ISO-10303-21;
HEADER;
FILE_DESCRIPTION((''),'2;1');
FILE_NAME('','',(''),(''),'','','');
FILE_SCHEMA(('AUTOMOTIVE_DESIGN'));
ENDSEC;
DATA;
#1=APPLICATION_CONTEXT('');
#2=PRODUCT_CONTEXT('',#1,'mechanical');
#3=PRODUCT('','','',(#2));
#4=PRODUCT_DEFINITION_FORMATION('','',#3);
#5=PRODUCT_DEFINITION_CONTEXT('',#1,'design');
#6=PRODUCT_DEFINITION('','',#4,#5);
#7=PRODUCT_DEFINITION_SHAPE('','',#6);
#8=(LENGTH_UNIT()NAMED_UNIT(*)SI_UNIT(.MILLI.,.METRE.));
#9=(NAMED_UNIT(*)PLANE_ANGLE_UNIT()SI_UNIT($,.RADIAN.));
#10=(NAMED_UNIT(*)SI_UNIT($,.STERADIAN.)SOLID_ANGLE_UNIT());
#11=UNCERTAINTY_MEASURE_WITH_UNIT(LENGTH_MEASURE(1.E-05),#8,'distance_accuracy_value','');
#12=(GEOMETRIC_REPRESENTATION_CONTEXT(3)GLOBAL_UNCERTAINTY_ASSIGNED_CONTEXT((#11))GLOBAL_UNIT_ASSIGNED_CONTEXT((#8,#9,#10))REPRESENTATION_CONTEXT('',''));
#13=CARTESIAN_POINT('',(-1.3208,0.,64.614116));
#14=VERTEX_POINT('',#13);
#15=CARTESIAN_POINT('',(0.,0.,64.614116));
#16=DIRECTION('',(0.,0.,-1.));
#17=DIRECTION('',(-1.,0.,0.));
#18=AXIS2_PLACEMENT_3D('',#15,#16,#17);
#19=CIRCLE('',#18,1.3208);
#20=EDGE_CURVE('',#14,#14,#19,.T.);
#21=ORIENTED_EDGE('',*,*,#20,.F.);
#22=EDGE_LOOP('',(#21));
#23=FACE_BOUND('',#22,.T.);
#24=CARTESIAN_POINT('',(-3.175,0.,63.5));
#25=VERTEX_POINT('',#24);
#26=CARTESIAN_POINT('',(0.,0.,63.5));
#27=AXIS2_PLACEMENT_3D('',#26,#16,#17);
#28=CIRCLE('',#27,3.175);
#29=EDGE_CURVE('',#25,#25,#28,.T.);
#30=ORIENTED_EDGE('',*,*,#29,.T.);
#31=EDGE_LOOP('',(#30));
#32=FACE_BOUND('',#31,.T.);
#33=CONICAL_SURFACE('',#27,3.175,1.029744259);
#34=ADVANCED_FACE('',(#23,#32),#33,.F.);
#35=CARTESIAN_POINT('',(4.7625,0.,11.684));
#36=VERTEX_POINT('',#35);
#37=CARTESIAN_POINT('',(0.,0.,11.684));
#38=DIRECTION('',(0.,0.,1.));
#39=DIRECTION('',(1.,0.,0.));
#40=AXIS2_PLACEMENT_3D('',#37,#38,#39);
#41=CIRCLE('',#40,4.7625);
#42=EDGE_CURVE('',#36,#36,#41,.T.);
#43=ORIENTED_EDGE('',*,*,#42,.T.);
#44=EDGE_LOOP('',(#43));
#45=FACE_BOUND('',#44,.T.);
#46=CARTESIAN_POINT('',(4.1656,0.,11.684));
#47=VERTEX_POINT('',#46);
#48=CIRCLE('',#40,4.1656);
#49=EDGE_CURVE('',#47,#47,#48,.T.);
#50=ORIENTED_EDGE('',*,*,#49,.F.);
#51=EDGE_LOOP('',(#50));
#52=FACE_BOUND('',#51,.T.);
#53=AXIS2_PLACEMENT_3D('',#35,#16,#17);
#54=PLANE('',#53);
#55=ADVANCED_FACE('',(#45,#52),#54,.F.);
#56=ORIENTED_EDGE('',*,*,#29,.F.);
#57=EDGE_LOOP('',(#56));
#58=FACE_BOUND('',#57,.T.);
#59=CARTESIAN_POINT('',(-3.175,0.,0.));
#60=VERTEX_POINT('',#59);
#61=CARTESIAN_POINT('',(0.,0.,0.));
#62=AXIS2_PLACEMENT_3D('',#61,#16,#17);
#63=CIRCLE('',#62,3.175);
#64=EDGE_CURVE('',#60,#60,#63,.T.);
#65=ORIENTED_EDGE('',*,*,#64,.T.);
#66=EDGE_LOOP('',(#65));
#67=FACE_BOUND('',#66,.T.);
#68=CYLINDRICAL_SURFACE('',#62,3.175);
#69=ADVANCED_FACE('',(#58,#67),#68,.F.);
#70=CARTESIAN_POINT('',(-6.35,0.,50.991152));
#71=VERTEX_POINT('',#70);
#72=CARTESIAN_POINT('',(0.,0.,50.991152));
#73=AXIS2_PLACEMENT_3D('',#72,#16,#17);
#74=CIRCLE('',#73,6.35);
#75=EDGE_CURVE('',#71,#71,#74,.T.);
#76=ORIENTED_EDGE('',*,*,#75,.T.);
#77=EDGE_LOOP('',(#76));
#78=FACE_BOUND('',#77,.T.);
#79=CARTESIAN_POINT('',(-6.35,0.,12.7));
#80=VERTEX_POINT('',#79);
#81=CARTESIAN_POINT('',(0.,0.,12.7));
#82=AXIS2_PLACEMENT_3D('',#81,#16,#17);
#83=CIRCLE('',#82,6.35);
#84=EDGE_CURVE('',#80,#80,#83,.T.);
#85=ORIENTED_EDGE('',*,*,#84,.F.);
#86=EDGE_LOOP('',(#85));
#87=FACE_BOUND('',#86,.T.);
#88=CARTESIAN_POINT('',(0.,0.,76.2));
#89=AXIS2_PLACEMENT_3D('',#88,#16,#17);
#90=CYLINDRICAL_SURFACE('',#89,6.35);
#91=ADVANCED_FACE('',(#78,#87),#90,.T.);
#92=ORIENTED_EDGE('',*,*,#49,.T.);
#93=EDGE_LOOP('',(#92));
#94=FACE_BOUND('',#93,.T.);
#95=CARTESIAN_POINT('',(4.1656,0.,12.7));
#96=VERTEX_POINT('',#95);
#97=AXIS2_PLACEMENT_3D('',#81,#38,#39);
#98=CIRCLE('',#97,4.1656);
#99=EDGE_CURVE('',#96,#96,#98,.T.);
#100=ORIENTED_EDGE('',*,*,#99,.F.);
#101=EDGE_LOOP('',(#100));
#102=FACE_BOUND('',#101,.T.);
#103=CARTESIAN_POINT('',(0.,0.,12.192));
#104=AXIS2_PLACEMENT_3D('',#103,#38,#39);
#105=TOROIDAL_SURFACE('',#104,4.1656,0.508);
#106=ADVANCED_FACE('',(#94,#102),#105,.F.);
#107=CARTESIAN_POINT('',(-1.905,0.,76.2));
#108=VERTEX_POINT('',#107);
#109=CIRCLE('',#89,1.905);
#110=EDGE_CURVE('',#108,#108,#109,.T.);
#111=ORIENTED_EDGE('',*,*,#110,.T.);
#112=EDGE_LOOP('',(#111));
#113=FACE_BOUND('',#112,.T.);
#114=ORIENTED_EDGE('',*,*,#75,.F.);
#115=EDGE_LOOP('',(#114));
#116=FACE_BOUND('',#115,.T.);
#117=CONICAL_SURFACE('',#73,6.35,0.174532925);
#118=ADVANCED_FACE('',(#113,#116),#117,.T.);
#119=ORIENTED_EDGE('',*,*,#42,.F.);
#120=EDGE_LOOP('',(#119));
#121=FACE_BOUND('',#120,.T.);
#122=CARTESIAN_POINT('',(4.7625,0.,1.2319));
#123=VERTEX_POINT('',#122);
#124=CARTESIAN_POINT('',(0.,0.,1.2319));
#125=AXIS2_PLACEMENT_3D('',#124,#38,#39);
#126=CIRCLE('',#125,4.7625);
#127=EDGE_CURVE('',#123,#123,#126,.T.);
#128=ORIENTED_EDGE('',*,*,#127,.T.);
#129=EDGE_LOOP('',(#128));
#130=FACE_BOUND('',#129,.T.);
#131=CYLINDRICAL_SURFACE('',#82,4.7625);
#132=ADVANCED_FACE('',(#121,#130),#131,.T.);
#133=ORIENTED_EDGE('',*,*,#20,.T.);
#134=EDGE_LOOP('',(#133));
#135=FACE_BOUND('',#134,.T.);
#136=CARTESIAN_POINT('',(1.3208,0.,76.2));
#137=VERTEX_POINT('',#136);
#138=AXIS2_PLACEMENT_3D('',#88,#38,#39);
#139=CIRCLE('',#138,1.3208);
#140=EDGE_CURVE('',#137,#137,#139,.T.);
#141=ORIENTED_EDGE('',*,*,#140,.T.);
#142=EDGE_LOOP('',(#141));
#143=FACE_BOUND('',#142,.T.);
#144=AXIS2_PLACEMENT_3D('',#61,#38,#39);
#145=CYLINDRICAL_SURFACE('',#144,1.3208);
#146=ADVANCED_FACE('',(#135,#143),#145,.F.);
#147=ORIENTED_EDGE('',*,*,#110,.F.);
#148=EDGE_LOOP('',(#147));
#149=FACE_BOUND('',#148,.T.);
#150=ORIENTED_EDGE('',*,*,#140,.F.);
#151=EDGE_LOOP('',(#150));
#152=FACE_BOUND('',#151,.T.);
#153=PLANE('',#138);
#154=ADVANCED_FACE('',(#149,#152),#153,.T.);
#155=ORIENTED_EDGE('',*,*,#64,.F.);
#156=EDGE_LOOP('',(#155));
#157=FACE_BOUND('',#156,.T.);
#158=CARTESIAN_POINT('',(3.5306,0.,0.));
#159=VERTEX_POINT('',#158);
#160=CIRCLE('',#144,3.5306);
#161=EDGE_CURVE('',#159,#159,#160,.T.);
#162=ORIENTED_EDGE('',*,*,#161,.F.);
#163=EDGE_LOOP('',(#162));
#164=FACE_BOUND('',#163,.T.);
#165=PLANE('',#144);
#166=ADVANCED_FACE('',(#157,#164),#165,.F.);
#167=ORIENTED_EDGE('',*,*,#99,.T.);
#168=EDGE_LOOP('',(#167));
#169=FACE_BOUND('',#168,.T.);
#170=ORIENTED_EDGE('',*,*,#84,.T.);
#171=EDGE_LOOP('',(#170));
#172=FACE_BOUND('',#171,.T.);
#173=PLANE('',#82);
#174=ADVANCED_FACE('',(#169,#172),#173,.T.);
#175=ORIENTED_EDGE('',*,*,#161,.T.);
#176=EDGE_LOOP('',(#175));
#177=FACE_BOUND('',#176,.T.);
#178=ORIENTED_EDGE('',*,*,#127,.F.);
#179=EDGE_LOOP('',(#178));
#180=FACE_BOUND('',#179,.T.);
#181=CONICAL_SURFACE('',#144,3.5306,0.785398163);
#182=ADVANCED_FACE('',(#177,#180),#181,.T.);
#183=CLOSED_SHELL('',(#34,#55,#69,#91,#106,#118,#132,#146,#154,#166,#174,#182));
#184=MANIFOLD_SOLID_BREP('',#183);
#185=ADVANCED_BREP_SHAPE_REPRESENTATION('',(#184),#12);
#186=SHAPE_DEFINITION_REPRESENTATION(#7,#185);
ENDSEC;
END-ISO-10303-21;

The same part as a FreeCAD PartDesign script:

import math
import FreeCAD as App
import Part
import Sketcher

V = App.Vector
Q = App.Units.Quantity

doc = App.newDocument("Part")
params = doc.addObject("Spreadsheet::Sheet", "Params")
for row, (alias, value) in enumerate([
    ("sketch1_diameter", "0.5 in"),
    ("pad1_length", "3 in"),
    ("sketch2_width", "0.175 in"),
    ("groove_angle", "360 deg"),
    ("sketch3_diameter", "0.104 in"),
    ("sketch4_diameter", "0.5 in"),
    ("sketch4_diameter2", "0.375 in"),
    ("pocket2_length", "0.5 in"),
    ("sketch5_diameter", "0.25 in"),
    ("hole_diameter", "0.25 in"),
    ("hole_depth", "2.5 in"),
    ("sketch6_radius", "0.02 in"),
    ("groove2_angle", "360 deg"),
    ("groove3_angle", "360 deg"),
], start=1):
    params.set(f"A{row}", alias)
    params.set(f"B{row}", "=" + value)
    params.setAlias(f"B{row}", alias)

body = doc.addObject("PartDesign::Body", "Body")

# Sketch on XY plane
sketch1 = body.newObject("Sketcher::SketchObject", "Sketch")
sketch1.AttachmentSupport = (doc.getObject("XY_Plane"), [""])
sketch1.MapMode = "FlatFace"
sketch1.addGeometry(Part.Circle(V(0, 0, 0), V(0, 0, 1), 6), False)
sketch1.addConstraint([
    Sketcher.Constraint("Coincident", 0, 3, -1, 1),
    Sketcher.Constraint("Diameter", 0, Q("0.5 in")),
])
sketch1.setExpression("Constraints[1]", "Params.sketch1_diameter")
pad1 = body.newObject("PartDesign::Pad", "Pad")
pad1.Profile = sketch1
pad1.setExpression("Length", "Params.pad1_length")

# Sketch on XZ plane
sketch2 = body.newObject("Sketcher::SketchObject", "Sketch001")
sketch2.AttachmentSupport = (doc.getObject("XZ_Plane"), [""])
sketch2.MapMode = "FlatFace"
sketch2.addGeometry([
    Part.LineSegment(V(6.3, 76.2, 0), V(6.3, 51, 0)),
    Part.LineSegment(V(6.3, 51, 0), V(1.9, 76.2, 0)),
    Part.LineSegment(V(1.9, 76.2, 0), V(6.3, 76.2, 0)),
], False)
sketch2.addConstraint([
    Sketcher.Constraint("Coincident", 0, 2, 1, 1),
    Sketcher.Constraint("Coincident", 1, 2, 2, 1),
    Sketcher.Constraint("Coincident", 2, 2, 0, 1),
    Sketcher.Constraint("Vertical", 0),
    Sketcher.Constraint("Horizontal", 2),
    Sketcher.Constraint("DistanceY", -1, 1, 1, 2, Q("3 in")),
    Sketcher.Constraint("Angle", 1, Q("100 deg")),
    Sketcher.Constraint("DistanceX", 2, 1, 2, 2, Q("0.175 in")),
    Sketcher.Constraint("DistanceX", -1, 1, 0, 2, Q("0.25 in")),
])
sketch2.setExpression("Constraints[7]", "Params.sketch2_width")
groove = body.newObject("PartDesign::Groove", "Groove")
groove.Profile = sketch2
groove.ReferenceAxis = (sketch2, ["V_Axis"])
groove.setExpression("Angle", "Params.groove_angle")

# Sketch on XY plane
sketch3 = body.newObject("Sketcher::SketchObject", "Sketch002")
sketch3.AttachmentSupport = (doc.getObject("XY_Plane"), [""])
sketch3.MapMode = "FlatFace"
sketch3.AttachmentOffset = App.Placement(V(0, 0, 3 * 25.4), App.Rotation())
sketch3.addGeometry(Part.Circle(V(0, 0, 0), V(0, 0, 1), 1.3), False)
sketch3.addConstraint([
    Sketcher.Constraint("Coincident", 0, 3, -1, 1),
    Sketcher.Constraint("Diameter", 0, Q("0.104 in")),
])
sketch3.setExpression("Constraints[1]", "Params.sketch3_diameter")
pocket1 = body.newObject("PartDesign::Pocket", "Pocket")
pocket1.Profile = sketch3
pocket1.Type = "ThroughAll"

# Sketch on XY plane
sketch4 = body.newObject("Sketcher::SketchObject", "Sketch003")
sketch4.AttachmentSupport = (doc.getObject("XY_Plane"), [""])
sketch4.MapMode = "FlatFace"
sketch4.addGeometry([
    Part.Circle(V(0, 0, 0), V(0, 0, 1), 6.3),
    Part.Circle(V(0, 0, 0), V(0, 0, 1), 4.8),
], False)
sketch4.addConstraint([
    Sketcher.Constraint("Coincident", 0, 3, -1, 1),
    Sketcher.Constraint("Coincident", 1, 3, -1, 1),
    Sketcher.Constraint("Diameter", 0, Q("0.5 in")),
    Sketcher.Constraint("Diameter", 1, Q("0.375 in")),
])
sketch4.setExpression("Constraints[2]", "Params.sketch4_diameter")
sketch4.setExpression("Constraints[3]", "Params.sketch4_diameter2")
pocket2 = body.newObject("PartDesign::Pocket", "Pocket001")
pocket2.Profile = sketch4
pocket2.setExpression("Length", "Params.pocket2_length")
pocket2.Reversed = True

# Sketch on XY plane
sketch5 = body.newObject("Sketcher::SketchObject", "Sketch004")
sketch5.AttachmentSupport = (doc.getObject("XY_Plane"), [""])
sketch5.MapMode = "FlatFace"
sketch5.addGeometry(Part.Circle(V(0, 0, 0), V(0, 0, 1), 3.2), False)
sketch5.addConstraint([
    Sketcher.Constraint("Coincident", 0, 3, -1, 1),
    Sketcher.Constraint("Diameter", 0, Q("0.25 in")),
])
sketch5.setExpression("Constraints[1]", "Params.sketch5_diameter")
doc.recompute()
hole = body.newObject("PartDesign::Hole", "Hole")
hole.Profile = sketch5
hole.ThreadType = "None"
hole.setExpression("Diameter", "Params.hole_diameter")
hole.DepthType = "Dimension"
hole.setExpression("Depth", "Params.hole_depth")
hole.DrillPoint = "Angled"
hole.DrillPointAngle = 118
hole.Reversed = True

# Sketch on XZ plane
sketch6 = body.newObject("Sketcher::SketchObject", "Sketch005")
sketch6.AttachmentSupport = (doc.getObject("XZ_Plane"), [""])
sketch6.MapMode = "FlatFace"
sketch6.addGeometry([
    Part.LineSegment(V(4.2, 12.7, 0), V(4.8, 12.7, 0)),
    Part.LineSegment(V(4.8, 12.7, 0), V(4.8, 11.7, 0)),
    Part.LineSegment(V(4.8, 11.7, 0), V(4.2, 11.7, 0)),
    Part.ArcOfCircle(Part.Circle(V(4.2, 12.2, 0), V(0, 0, 1), 0.5), math.radians(90), math.radians(270)),
], False)
sketch6.addConstraint([
    Sketcher.Constraint("Coincident", 0, 2, 1, 1),
    Sketcher.Constraint("Coincident", 1, 2, 2, 1),
    Sketcher.Constraint("Tangent", 2, 2, 3, 2),
    Sketcher.Constraint("Tangent", 3, 1, 0, 1),
    Sketcher.Constraint("Horizontal", 0),
    Sketcher.Constraint("Vertical", 1),
    Sketcher.Constraint("Horizontal", 2),
    Sketcher.Constraint("Radius", 3, Q("0.02 in")),
    Sketcher.Constraint("DistanceY", -1, 1, 0, 2, Q("0.5 in")),
    Sketcher.Constraint("DistanceX", 0, 1, 0, 2, Q("0.0235 in")),
    Sketcher.Constraint("DistanceX", -1, 1, 3, 3, Q("0.164 in")),
])
sketch6.setExpression("Constraints[7]", "Params.sketch6_radius")
groove2 = body.newObject("PartDesign::Groove", "Groove001")
groove2.Profile = sketch6
groove2.ReferenceAxis = (sketch6, ["V_Axis"])
groove2.setExpression("Angle", "Params.groove2_angle")

# Sketch on XZ plane
sketch7 = body.newObject("Sketcher::SketchObject", "Sketch006")
sketch7.AttachmentSupport = (doc.getObject("XZ_Plane"), [""])
sketch7.MapMode = "FlatFace"
sketch7.addGeometry([
    Part.LineSegment(V(4.8, 1.2, 0), V(4.8, 0, 0)),
    Part.LineSegment(V(4.8, 0, 0), V(3.5, 0, 0)),
    Part.LineSegment(V(3.5, 0, 0), V(4.8, 1.2, 0)),
], False)
sketch7.addConstraint([
    Sketcher.Constraint("Coincident", 0, 2, 1, 1),
    Sketcher.Constraint("Coincident", 1, 2, 2, 1),
    Sketcher.Constraint("Coincident", 2, 2, 0, 1),
    Sketcher.Constraint("Vertical", 0),
    Sketcher.Constraint("Horizontal", 1),
    Sketcher.Constraint("PointOnObject", 0, 2, -1),
    Sketcher.Constraint("Equal", 1, 0),
    Sketcher.Constraint("DistanceX", 1, 2, 1, 1, Q("0.0485 in")),
    Sketcher.Constraint("DistanceX", -1, 1, 0, 2, Q("0.1875 in")),
])
groove3 = body.newObject("PartDesign::Groove", "Groove002")
groove3.Profile = sketch7
groove3.ReferenceAxis = (sketch7, ["V_Axis"])
groove3.setExpression("Angle", "Params.groove3_angle")

doc.recompute()
